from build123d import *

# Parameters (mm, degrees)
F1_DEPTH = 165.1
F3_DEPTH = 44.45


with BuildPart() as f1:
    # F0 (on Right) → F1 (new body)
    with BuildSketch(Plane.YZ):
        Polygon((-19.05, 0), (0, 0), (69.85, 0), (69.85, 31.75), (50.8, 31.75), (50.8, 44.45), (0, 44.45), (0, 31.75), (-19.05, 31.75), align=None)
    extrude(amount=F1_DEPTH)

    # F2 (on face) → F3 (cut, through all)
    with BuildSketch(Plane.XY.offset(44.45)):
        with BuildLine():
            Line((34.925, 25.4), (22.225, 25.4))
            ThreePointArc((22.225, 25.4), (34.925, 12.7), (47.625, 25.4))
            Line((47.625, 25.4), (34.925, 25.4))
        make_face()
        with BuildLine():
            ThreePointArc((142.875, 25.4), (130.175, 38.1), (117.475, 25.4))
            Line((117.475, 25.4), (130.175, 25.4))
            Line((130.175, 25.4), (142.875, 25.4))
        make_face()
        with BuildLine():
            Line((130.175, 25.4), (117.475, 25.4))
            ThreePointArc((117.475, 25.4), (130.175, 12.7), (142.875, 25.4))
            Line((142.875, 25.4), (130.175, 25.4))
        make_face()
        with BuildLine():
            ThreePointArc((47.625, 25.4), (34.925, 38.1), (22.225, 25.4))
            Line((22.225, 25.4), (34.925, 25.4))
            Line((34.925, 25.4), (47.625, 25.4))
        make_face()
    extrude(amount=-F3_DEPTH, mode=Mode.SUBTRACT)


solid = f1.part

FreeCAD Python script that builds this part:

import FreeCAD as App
import Part
import Sketcher

V = App.Vector
Q = App.Units.Quantity

doc = App.newDocument("Part")
body = doc.addObject("PartDesign::Body", "Body")

# Sketch on YZ plane
sketch1 = body.newObject("Sketcher::SketchObject", "Sketch")
sketch1.AttachmentSupport = (doc.getObject("YZ_Plane"), [""])
sketch1.MapMode = "FlatFace"
sketch1.addGeometry([
    Part.LineSegment(V(-19, 0, 0), V(70, 0, 0)),  # 0
    Part.LineSegment(V(70, 0, 0), V(70, 32, 0)),  # 1
    Part.LineSegment(V(70, 32, 0), V(51, 32, 0)),  # 2
    Part.LineSegment(V(51, 32, 0), V(51, 44, 0)),  # 3
    Part.LineSegment(V(51, 44, 0), V(0, 44, 0)),  # 4
    Part.LineSegment(V(0, 44, 0), V(0, 32, 0)),  # 5
    Part.LineSegment(V(0, 32, 0), V(-19, 32, 0)),  # 6
    Part.LineSegment(V(-19, 32, 0), V(-19, 0, 0)),  # 7
], False)
sketch1.addConstraint([
    Sketcher.Constraint("Coincident", 0, 2, 1, 1),
    Sketcher.Constraint("Coincident", 1, 2, 2, 1),
    Sketcher.Constraint("Coincident", 2, 2, 3, 1),
    Sketcher.Constraint("Coincident", 3, 2, 4, 1),
    Sketcher.Constraint("Coincident", 4, 2, 5, 1),
    Sketcher.Constraint("Coincident", 5, 2, 6, 1),
    Sketcher.Constraint("Coincident", 6, 2, 7, 1),
    Sketcher.Constraint("Coincident", 7, 2, 0, 1),
    Sketcher.Constraint("Horizontal", 0),
    Sketcher.Constraint("Vertical", 1),
    Sketcher.Constraint("Horizontal", 2),
    Sketcher.Constraint("Vertical", 3),
    Sketcher.Constraint("Horizontal", 4),
    Sketcher.Constraint("Vertical", 5),
    Sketcher.Constraint("Horizontal", 6),
    Sketcher.Constraint("Vertical", 7),
    Sketcher.Constraint("PointOnObject", 0, 2, -1),
    Sketcher.Constraint("PointOnObject", 4, 2, -2),
    Sketcher.Constraint("Horizontal", 2, 2, 5, 2),
    Sketcher.Constraint("Equal", 2, 6),
    Sketcher.Constraint("DistanceX", 4, 2, 4, 1, Q("2 in")),
    Sketcher.Constraint("DistanceX", 0, 1, 0, 2, Q("3.5 in")),
    Sketcher.Constraint("DistanceY", 3, 1, 3, 2, Q("0.5 in")),
    Sketcher.Constraint("DistanceY", 1, 1, 1, 2, Q("1.25 in")),
])
pad1 = body.newObject("PartDesign::Pad", "Pad")
pad1.Profile = sketch1
pad1.Length = Q("6.5 in")

# Sketch on XY plane
sketch2 = body.newObject("Sketcher::SketchObject", "Sketch001")
sketch2.AttachmentSupport = (doc.getObject("XY_Plane"), [""])
sketch2.MapMode = "FlatFace"
sketch2.AttachmentOffset = App.Placement(V(0, 0, 1.75 * 25.4), App.Rotation())
sketch2.addGeometry([
    Part.Circle(V(35, 25, 0), V(0, 0, 1), 13),
    Part.Circle(V(130, 25, 0), V(0, 0, 1), 13),
], False)
sketch2.addConstraint([
    Sketcher.Constraint("Equal", 0, 1),
    Sketcher.Constraint("Horizontal", 0, 3, 1, 3),
    Sketcher.Constraint("Diameter", 0, Q("1 in")),
    Sketcher.Constraint("DistanceY", -1, 1, 0, 3, Q("1 in")),
    Sketcher.Constraint("DistanceX", 0, 3, 1, 3, Q("3.75 in")),
    Sketcher.Constraint("DistanceX", -1, 1, 0, 3, Q("1.375 in")),
])
pocket1 = body.newObject("PartDesign::Pocket", "Pocket")
pocket1.Profile = sketch2
pocket1.Type = "ThroughAll"

doc.recompute()
